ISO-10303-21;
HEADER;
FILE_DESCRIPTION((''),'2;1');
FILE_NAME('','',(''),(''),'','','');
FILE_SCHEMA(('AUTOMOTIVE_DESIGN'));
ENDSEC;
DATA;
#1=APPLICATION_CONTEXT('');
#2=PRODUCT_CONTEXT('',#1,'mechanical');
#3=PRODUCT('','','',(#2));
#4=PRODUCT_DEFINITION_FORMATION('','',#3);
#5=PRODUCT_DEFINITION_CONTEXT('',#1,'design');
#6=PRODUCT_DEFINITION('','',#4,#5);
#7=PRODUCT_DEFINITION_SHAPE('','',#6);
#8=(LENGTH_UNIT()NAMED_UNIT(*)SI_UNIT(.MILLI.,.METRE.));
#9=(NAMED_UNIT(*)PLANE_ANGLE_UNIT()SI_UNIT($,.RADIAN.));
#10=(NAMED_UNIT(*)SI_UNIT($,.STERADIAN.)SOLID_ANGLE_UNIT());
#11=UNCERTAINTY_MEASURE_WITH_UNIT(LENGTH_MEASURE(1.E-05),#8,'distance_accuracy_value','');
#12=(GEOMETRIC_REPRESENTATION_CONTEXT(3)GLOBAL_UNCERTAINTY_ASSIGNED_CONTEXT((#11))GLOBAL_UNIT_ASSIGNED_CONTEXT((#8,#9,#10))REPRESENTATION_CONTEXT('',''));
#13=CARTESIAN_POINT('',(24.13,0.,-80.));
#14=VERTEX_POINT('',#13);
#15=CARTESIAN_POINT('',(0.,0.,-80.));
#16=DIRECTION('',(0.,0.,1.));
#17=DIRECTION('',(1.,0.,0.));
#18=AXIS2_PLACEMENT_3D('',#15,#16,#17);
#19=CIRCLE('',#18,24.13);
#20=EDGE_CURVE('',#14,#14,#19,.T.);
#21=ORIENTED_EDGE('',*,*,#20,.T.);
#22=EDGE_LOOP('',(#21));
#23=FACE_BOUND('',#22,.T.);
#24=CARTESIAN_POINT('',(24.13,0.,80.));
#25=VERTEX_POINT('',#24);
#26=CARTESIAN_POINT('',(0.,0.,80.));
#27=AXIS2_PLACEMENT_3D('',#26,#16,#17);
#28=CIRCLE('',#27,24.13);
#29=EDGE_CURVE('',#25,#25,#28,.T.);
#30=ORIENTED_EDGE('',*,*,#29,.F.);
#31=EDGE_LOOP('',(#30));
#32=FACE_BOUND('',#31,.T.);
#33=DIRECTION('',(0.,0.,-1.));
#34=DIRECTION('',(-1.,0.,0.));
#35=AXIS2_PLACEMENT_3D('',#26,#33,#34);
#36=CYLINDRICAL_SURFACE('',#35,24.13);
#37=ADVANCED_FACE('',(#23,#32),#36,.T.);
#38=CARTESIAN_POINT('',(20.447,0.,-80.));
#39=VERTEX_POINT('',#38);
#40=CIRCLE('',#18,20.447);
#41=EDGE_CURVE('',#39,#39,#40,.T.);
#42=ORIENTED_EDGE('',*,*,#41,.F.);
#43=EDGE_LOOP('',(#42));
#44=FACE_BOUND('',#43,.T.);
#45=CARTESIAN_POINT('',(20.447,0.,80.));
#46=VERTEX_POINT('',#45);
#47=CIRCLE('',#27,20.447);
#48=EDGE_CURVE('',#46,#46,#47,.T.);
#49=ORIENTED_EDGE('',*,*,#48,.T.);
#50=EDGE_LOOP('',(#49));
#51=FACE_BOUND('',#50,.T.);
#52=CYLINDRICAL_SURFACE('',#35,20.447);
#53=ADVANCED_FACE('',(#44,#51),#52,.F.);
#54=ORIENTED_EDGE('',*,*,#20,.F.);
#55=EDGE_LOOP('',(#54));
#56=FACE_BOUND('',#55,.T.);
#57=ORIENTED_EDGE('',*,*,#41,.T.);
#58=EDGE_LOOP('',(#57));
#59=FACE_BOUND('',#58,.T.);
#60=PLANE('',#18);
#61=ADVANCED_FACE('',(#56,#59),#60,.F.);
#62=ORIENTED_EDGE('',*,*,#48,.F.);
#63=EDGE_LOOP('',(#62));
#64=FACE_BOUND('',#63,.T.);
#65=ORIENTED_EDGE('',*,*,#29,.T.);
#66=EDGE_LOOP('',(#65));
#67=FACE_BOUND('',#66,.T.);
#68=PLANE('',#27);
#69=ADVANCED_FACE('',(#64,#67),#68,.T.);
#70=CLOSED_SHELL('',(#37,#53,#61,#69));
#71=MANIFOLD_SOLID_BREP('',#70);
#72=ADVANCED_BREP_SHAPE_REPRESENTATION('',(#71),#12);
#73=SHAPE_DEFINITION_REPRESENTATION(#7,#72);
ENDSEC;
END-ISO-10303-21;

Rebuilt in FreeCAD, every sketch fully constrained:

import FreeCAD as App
import Part
import Sketcher

V = App.Vector
Q = App.Units.Quantity

doc = App.newDocument("Part")
body = doc.addObject("PartDesign::Body", "Body")

# Sketch on XY plane
sketch1 = doc.addObject("Sketcher::SketchObject", "Sketch")
body.addObject(sketch1)
sketch1.AttachmentSupport = (doc.XY_Plane, [""])
sketch1.MapMode = "FlatFace"
sketch1.addGeometry(Part.Circle(V(0, 0, 0), V(0, 0, 1), 24.13), False)
sketch1.addGeometry(Part.Circle(V(0, 0, 0), V(0, 0, 1), 20.447), False)
sketch1.addConstraint(Sketcher.Constraint("Coincident", 0, 3, -1, 1))
sketch1.addConstraint(Sketcher.Constraint("Coincident", 1, 3, -1, 1))
sketch1.addConstraint(Sketcher.Constraint("Diameter", 0, Q("1.9 in")))
sketch1.addConstraint(Sketcher.Constraint("Diameter", 1, Q("1.61 in")))
pad1 = doc.addObject("PartDesign::Pad", "Pad")
body.addObject(pad1)
pad1.Profile = sketch1
pad1.Length = 160
pad1.Midplane = True

doc.recompute()
